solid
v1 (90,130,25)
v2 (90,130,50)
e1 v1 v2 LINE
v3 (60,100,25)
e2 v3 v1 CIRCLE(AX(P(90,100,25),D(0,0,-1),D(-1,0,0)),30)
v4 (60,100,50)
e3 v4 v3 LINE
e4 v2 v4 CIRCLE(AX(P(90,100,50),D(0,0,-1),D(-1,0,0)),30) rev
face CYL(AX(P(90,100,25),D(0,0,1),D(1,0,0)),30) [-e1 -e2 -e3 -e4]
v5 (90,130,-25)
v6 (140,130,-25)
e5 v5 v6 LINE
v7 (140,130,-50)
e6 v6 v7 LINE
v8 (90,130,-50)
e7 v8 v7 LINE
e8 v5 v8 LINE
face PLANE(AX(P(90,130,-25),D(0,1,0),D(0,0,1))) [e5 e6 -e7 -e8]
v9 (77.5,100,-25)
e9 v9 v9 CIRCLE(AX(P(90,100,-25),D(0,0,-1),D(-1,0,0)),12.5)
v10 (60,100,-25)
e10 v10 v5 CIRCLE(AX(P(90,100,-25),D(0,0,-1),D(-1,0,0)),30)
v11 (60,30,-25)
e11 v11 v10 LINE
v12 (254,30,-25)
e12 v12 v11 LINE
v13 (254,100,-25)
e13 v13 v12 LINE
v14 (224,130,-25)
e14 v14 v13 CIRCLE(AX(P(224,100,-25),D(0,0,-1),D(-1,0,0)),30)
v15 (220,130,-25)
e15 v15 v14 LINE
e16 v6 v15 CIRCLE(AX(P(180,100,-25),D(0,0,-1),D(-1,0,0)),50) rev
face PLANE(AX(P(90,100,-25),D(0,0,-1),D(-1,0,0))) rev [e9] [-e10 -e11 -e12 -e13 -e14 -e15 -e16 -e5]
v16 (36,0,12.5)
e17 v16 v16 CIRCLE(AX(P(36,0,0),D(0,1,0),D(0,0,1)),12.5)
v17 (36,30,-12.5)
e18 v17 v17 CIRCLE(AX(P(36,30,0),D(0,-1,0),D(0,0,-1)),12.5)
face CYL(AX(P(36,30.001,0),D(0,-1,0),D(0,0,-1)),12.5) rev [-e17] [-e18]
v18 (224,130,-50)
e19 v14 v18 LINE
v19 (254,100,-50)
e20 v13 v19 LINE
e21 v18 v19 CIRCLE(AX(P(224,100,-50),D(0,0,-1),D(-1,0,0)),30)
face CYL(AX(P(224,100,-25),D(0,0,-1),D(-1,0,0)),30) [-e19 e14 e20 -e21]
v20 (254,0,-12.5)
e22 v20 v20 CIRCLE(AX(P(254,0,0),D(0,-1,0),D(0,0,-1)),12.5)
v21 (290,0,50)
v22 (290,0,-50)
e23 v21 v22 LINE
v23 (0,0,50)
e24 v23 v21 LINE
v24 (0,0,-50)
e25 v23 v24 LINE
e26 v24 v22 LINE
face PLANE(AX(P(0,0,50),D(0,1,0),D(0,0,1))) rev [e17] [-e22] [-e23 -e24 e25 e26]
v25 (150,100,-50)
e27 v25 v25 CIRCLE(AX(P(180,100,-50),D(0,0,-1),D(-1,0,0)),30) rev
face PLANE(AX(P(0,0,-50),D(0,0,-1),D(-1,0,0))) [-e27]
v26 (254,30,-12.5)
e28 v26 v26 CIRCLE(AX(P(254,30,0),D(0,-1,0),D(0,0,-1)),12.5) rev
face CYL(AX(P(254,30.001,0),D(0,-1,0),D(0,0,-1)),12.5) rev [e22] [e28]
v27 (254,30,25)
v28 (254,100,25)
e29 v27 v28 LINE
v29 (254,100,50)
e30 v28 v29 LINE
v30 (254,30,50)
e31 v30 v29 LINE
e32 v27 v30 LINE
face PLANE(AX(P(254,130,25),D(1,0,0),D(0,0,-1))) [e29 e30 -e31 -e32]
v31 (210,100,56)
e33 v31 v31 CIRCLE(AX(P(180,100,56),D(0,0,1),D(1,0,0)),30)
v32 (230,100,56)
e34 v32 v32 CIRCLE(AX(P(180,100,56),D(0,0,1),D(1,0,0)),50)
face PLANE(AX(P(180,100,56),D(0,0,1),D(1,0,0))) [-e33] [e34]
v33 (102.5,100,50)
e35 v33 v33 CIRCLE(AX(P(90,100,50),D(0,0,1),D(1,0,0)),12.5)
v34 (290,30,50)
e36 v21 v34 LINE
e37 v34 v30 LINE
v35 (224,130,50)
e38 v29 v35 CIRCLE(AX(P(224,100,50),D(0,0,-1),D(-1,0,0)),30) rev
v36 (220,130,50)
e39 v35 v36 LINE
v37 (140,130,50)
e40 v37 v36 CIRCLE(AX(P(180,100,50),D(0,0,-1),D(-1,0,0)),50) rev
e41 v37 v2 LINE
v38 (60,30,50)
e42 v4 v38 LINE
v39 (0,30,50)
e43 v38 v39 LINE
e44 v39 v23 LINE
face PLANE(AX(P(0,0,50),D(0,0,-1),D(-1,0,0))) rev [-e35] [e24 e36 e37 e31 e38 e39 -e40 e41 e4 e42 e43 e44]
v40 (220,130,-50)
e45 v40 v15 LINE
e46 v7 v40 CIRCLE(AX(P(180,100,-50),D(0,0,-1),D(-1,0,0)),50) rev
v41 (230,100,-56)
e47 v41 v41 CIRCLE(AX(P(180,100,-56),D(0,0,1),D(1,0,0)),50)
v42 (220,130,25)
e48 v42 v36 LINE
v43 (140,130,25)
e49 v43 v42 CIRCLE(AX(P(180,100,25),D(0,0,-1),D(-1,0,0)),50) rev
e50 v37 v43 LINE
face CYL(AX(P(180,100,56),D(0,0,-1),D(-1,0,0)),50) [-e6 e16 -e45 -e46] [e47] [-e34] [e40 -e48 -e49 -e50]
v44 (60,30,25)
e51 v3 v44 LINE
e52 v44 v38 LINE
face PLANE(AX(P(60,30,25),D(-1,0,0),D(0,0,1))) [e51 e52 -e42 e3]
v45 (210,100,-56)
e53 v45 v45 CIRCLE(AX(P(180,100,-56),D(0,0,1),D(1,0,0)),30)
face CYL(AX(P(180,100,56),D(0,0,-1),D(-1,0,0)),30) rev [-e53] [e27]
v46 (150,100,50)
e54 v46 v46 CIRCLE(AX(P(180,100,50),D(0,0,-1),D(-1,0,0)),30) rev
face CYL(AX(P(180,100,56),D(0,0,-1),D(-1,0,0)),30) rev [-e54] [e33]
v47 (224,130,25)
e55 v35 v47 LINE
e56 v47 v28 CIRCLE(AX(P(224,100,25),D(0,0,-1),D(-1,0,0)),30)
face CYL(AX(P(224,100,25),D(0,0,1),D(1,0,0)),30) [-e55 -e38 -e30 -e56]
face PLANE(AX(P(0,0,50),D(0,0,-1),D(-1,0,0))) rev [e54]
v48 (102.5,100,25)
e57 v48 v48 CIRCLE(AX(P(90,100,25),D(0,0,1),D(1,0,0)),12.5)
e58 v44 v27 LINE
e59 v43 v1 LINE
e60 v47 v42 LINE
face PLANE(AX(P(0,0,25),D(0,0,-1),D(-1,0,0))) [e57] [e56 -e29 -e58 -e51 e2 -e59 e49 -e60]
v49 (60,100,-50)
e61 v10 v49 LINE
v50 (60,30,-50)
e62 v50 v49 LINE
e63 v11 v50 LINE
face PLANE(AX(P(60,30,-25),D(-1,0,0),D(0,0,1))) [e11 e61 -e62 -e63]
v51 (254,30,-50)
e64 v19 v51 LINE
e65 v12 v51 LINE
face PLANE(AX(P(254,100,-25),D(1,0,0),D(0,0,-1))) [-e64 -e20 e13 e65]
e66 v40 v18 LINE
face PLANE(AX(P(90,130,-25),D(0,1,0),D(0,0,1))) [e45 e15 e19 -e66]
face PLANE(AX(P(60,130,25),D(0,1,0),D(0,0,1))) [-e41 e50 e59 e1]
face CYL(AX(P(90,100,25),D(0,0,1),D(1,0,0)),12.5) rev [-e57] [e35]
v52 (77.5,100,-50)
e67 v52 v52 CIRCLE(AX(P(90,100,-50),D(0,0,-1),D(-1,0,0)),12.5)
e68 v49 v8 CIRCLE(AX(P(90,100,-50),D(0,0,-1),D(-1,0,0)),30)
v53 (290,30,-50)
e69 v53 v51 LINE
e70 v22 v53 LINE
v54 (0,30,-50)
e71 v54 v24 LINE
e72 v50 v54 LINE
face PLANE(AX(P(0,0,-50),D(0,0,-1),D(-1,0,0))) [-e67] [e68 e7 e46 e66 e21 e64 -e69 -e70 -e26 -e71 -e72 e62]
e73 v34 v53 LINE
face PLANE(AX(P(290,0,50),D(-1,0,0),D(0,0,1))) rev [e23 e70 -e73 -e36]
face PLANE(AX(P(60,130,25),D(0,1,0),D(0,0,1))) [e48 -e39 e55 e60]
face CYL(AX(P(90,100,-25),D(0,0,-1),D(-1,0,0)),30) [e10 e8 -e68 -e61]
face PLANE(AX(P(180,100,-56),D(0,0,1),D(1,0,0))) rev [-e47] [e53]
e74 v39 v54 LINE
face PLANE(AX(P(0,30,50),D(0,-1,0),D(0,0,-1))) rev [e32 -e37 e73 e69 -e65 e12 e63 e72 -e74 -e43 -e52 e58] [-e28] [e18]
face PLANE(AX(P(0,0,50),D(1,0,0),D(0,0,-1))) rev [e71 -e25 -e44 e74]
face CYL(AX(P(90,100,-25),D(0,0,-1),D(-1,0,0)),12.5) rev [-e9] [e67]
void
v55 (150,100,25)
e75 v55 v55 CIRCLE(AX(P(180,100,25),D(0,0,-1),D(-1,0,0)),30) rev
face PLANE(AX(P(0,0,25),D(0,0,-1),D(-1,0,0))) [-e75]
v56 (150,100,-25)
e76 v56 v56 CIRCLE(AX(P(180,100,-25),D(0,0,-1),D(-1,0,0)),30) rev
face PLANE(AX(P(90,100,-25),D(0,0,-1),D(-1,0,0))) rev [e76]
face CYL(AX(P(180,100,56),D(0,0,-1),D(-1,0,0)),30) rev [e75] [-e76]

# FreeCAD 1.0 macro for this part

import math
import FreeCAD as App
import Part
import Sketcher
Q = App.Units.Quantity


def edges_at(feature, points):
    """Names of the edges that pass closest to the given points."""
    edges = feature.Shape.Edges
    near = lambda p: min(range(len(edges)), key=lambda i: edges[i].distToShape(Part.Vertex(*p))[0])
    return sorted({f"Edge{near(p) + 1}" for p in points})


def add_polygon(sketch, points):
    """Adds a closed chain of lines whose ends are joined by coincident constraints."""
    first, n = sketch.GeometryCount, len(points)
    for a, b in zip(points, points[1:] + points[:1]):
        sketch.addGeometry(Part.LineSegment(App.Vector(*a, 0), App.Vector(*b, 0)), False)
    for i in range(n):
        sketch.addConstraint(Sketcher.Constraint("Coincident", first + i, 2, first + (i + 1) % n, 1))

doc = App.newDocument("Part")
body = doc.addObject("PartDesign::Body", "Body")

# Sketch on XY plane
sketch1 = body.newObject("Sketcher::SketchObject", "Sketch")
sketch1.AttachmentSupport = (doc.getObject("XY_Plane"), [""])
sketch1.MapMode = "FlatFace"
add_polygon(sketch1, [(0, 30), (0, 0), (290, 0), (290, 30)])  # lines 0-3
sketch1.addConstraint([
    Sketcher.Constraint("Vertical", 0),
    Sketcher.Constraint("Horizontal", 1),
    Sketcher.Constraint("Vertical", 2),
    Sketcher.Constraint("Horizontal", 3),
    Sketcher.Constraint("Coincident", 0, 2, -1, 1),
    Sketcher.Constraint("DistanceX", 1, 1, 1, 2, Q("290 mm")),
    Sketcher.Constraint("DistanceY", 0, 2, 0, 1, Q("30 mm")),
])
pad1 = body.newObject("PartDesign::Pad", "Pad")
pad1.Profile = sketch1
pad1.Length = 100
pad1.Midplane = True

# Sketch on XZ plane
sketch2 = body.newObject("Sketcher::SketchObject", "Sketch001")
sketch2.AttachmentSupport = (doc.getObject("XZ_Plane"), [""])
sketch2.MapMode = "FlatFace"
sketch2.addGeometry(Part.Circle(App.Vector(36, 0, 0), App.Vector(0, 0, 1), 12), False)
sketch2.addConstraint([
    Sketcher.Constraint("PointOnObject", 0, 3, -1),
    Sketcher.Constraint("Diameter", 0, Q("25 mm")),
    Sketcher.Constraint("DistanceX", -1, 1, 0, 3, Q("36 mm")),
])
pocket1 = body.newObject("PartDesign::Pocket", "Pocket")
pocket1.Profile = sketch2
pocket1.Type = "UpToFirst"

# Sketch on XZ plane
sketch3 = body.newObject("Sketcher::SketchObject", "Sketch002")
sketch3.AttachmentSupport = (doc.getObject("XZ_Plane"), [""])
sketch3.MapMode = "FlatFace"
sketch3.addGeometry(Part.Circle(App.Vector(254, 0, 0), App.Vector(0, 0, 1), 12), False)
sketch3.addConstraint([
    Sketcher.Constraint("PointOnObject", 0, 3, -1),
    Sketcher.Constraint("Diameter", 0, Q("25 mm")),
    Sketcher.Constraint("DistanceX", -1, 1, 0, 3, Q("254 mm")),
])
pocket2 = body.newObject("PartDesign::Pocket", "Pocket001")
pocket2.Profile = sketch3
pocket2.Type = "UpToFirst"

# Sketch on XY plane
sketch4 = body.newObject("Sketcher::SketchObject", "Sketch003")
sketch4.AttachmentSupport = (doc.getObject("XY_Plane"), [""])
sketch4.MapMode = "FlatFace"
sketch4.AttachmentOffset = App.Placement(App.Vector(0, 0, 50), App.Rotation())
add_polygon(sketch4, [(60, 130), (60, 30), (254, 30), (254, 130)])  # lines 0-3
sketch4.addGeometry(Part.Circle(App.Vector(90, 100, 0), App.Vector(0, 0, 1), 12), False)  # 4
sketch4.addConstraint([
    Sketcher.Constraint("Vertical", 0),
    Sketcher.Constraint("Horizontal", 1),
    Sketcher.Constraint("Vertical", 2),
    Sketcher.Constraint("Horizontal", 3),
    Sketcher.Constraint("Diameter", 4, Q("25 mm")),
    Sketcher.Constraint("DistanceX", 1, 1, 1, 2, Q("194 mm")),
    Sketcher.Constraint("DistanceY", 0, 2, 0, 1, Q("100 mm")),
    Sketcher.Constraint("DistanceX", -1, 1, 4, 3, Q("90 mm")),
    Sketcher.Constraint("DistanceY", -1, 1, 4, 3, Q("100 mm")),
    Sketcher.Constraint("DistanceX", -1, 1, 0, 2, Q("60 mm")),
    Sketcher.Constraint("DistanceY", -1, 1, 0, 2, Q("30 mm")),
])
pad2 = body.newObject("PartDesign::Pad", "Pad001")
pad2.Profile = sketch4
pad2.Length = 25
pad2.Reversed = True
doc.recompute()

fillet = body.newObject("PartDesign::Fillet", "Fillet")
fillet.Base = (pad2, edges_at(pad2, [(254, 130, 37.5), (60, 130, 37.5)]))
fillet.Radius = 30

# Sketch on XY plane
sketch5 = body.newObject("Sketcher::SketchObject", "Sketch004")
sketch5.AttachmentSupport = (doc.getObject("XY_Plane"), [""])
sketch5.MapMode = "FlatFace"
sketch5.AttachmentOffset = App.Placement(App.Vector(0, 0, -50), App.Rotation())
sketch5.addGeometry([
    Part.LineSegment(App.Vector(90, 130, 0), App.Vector(224, 130, 0)),  # 0
    Part.ArcOfCircle(Part.Circle(App.Vector(224, 100, 0), App.Vector(0, 0, 1), 30), math.radians(0), math.radians(90)),  # 1
    Part.LineSegment(App.Vector(254, 100, 0), App.Vector(254, 30, 0)),  # 2
    Part.LineSegment(App.Vector(254, 30, 0), App.Vector(60, 30, 0)),  # 3
    Part.LineSegment(App.Vector(60, 30, 0), App.Vector(60, 100, 0)),  # 4
    Part.ArcOfCircle(Part.Circle(App.Vector(90, 100, 0), App.Vector(0, 0, 1), 30), math.radians(90), math.radians(180)),  # 5
    Part.Circle(App.Vector(90, 100, 0), App.Vector(0, 0, 1), 12),  # 6
], False)
sketch5.addConstraint([
    Sketcher.Constraint("Tangent", 0, 2, 1, 2),
    Sketcher.Constraint("Tangent", 1, 1, 2, 1),
    Sketcher.Constraint("Coincident", 2, 2, 3, 1),
    Sketcher.Constraint("Coincident", 3, 2, 4, 1),
    Sketcher.Constraint("Tangent", 4, 2, 5, 2),
    Sketcher.Constraint("Tangent", 5, 1, 0, 1),
    Sketcher.Constraint("Horizontal", 0),
    Sketcher.Constraint("Vertical", 2),
    Sketcher.Constraint("Horizontal", 3),
    Sketcher.Constraint("Vertical", 4),
    Sketcher.Constraint("Coincident", 6, 3, 5, 3),
    Sketcher.Constraint("Equal", 1, 5),
    Sketcher.Constraint("Diameter", 6, Q("25 mm")),
    Sketcher.Constraint("Radius", 1, Q("30 mm")),
    Sketcher.Constraint("DistanceX", 0, 1, 0, 2, Q("134 mm")),
    Sketcher.Constraint("DistanceY", 2, 2, 2, 1, Q("70 mm")),
    Sketcher.Constraint("DistanceX", -1, 1, 1, 3, Q("224 mm")),
    Sketcher.Constraint("DistanceY", -1, 1, 1, 3, Q("100 mm")),
])
pad3 = body.newObject("PartDesign::Pad", "Pad002")
pad3.Profile = sketch5
pad3.Length = 25

# Sketch on XY plane
sketch6 = body.newObject("Sketcher::SketchObject", "Sketch005")
sketch6.AttachmentSupport = (doc.getObject("XY_Plane"), [""])
sketch6.MapMode = "FlatFace"
sketch6.addGeometry([
    Part.Circle(App.Vector(180, 100, 0), App.Vector(0, 0, 1), 50),
    Part.Circle(App.Vector(180, 100, 0), App.Vector(0, 0, 1), 30),
], False)
sketch6.addConstraint([
    Sketcher.Constraint("Coincident", 1, 3, 0, 3),
    Sketcher.Constraint("Diameter", 0, Q("100 mm")),
    Sketcher.Constraint("Diameter", 1, Q("60 mm")),
    Sketcher.Constraint("DistanceX", -1, 1, 0, 3, Q("180 mm")),
    Sketcher.Constraint("DistanceY", -1, 1, 0, 3, Q("100 mm")),
])
pad4 = body.newObject("PartDesign::Pad", "Pad003")
pad4.Profile = sketch6
pad4.Length = 112
pad4.Midplane = True

doc.recompute()
